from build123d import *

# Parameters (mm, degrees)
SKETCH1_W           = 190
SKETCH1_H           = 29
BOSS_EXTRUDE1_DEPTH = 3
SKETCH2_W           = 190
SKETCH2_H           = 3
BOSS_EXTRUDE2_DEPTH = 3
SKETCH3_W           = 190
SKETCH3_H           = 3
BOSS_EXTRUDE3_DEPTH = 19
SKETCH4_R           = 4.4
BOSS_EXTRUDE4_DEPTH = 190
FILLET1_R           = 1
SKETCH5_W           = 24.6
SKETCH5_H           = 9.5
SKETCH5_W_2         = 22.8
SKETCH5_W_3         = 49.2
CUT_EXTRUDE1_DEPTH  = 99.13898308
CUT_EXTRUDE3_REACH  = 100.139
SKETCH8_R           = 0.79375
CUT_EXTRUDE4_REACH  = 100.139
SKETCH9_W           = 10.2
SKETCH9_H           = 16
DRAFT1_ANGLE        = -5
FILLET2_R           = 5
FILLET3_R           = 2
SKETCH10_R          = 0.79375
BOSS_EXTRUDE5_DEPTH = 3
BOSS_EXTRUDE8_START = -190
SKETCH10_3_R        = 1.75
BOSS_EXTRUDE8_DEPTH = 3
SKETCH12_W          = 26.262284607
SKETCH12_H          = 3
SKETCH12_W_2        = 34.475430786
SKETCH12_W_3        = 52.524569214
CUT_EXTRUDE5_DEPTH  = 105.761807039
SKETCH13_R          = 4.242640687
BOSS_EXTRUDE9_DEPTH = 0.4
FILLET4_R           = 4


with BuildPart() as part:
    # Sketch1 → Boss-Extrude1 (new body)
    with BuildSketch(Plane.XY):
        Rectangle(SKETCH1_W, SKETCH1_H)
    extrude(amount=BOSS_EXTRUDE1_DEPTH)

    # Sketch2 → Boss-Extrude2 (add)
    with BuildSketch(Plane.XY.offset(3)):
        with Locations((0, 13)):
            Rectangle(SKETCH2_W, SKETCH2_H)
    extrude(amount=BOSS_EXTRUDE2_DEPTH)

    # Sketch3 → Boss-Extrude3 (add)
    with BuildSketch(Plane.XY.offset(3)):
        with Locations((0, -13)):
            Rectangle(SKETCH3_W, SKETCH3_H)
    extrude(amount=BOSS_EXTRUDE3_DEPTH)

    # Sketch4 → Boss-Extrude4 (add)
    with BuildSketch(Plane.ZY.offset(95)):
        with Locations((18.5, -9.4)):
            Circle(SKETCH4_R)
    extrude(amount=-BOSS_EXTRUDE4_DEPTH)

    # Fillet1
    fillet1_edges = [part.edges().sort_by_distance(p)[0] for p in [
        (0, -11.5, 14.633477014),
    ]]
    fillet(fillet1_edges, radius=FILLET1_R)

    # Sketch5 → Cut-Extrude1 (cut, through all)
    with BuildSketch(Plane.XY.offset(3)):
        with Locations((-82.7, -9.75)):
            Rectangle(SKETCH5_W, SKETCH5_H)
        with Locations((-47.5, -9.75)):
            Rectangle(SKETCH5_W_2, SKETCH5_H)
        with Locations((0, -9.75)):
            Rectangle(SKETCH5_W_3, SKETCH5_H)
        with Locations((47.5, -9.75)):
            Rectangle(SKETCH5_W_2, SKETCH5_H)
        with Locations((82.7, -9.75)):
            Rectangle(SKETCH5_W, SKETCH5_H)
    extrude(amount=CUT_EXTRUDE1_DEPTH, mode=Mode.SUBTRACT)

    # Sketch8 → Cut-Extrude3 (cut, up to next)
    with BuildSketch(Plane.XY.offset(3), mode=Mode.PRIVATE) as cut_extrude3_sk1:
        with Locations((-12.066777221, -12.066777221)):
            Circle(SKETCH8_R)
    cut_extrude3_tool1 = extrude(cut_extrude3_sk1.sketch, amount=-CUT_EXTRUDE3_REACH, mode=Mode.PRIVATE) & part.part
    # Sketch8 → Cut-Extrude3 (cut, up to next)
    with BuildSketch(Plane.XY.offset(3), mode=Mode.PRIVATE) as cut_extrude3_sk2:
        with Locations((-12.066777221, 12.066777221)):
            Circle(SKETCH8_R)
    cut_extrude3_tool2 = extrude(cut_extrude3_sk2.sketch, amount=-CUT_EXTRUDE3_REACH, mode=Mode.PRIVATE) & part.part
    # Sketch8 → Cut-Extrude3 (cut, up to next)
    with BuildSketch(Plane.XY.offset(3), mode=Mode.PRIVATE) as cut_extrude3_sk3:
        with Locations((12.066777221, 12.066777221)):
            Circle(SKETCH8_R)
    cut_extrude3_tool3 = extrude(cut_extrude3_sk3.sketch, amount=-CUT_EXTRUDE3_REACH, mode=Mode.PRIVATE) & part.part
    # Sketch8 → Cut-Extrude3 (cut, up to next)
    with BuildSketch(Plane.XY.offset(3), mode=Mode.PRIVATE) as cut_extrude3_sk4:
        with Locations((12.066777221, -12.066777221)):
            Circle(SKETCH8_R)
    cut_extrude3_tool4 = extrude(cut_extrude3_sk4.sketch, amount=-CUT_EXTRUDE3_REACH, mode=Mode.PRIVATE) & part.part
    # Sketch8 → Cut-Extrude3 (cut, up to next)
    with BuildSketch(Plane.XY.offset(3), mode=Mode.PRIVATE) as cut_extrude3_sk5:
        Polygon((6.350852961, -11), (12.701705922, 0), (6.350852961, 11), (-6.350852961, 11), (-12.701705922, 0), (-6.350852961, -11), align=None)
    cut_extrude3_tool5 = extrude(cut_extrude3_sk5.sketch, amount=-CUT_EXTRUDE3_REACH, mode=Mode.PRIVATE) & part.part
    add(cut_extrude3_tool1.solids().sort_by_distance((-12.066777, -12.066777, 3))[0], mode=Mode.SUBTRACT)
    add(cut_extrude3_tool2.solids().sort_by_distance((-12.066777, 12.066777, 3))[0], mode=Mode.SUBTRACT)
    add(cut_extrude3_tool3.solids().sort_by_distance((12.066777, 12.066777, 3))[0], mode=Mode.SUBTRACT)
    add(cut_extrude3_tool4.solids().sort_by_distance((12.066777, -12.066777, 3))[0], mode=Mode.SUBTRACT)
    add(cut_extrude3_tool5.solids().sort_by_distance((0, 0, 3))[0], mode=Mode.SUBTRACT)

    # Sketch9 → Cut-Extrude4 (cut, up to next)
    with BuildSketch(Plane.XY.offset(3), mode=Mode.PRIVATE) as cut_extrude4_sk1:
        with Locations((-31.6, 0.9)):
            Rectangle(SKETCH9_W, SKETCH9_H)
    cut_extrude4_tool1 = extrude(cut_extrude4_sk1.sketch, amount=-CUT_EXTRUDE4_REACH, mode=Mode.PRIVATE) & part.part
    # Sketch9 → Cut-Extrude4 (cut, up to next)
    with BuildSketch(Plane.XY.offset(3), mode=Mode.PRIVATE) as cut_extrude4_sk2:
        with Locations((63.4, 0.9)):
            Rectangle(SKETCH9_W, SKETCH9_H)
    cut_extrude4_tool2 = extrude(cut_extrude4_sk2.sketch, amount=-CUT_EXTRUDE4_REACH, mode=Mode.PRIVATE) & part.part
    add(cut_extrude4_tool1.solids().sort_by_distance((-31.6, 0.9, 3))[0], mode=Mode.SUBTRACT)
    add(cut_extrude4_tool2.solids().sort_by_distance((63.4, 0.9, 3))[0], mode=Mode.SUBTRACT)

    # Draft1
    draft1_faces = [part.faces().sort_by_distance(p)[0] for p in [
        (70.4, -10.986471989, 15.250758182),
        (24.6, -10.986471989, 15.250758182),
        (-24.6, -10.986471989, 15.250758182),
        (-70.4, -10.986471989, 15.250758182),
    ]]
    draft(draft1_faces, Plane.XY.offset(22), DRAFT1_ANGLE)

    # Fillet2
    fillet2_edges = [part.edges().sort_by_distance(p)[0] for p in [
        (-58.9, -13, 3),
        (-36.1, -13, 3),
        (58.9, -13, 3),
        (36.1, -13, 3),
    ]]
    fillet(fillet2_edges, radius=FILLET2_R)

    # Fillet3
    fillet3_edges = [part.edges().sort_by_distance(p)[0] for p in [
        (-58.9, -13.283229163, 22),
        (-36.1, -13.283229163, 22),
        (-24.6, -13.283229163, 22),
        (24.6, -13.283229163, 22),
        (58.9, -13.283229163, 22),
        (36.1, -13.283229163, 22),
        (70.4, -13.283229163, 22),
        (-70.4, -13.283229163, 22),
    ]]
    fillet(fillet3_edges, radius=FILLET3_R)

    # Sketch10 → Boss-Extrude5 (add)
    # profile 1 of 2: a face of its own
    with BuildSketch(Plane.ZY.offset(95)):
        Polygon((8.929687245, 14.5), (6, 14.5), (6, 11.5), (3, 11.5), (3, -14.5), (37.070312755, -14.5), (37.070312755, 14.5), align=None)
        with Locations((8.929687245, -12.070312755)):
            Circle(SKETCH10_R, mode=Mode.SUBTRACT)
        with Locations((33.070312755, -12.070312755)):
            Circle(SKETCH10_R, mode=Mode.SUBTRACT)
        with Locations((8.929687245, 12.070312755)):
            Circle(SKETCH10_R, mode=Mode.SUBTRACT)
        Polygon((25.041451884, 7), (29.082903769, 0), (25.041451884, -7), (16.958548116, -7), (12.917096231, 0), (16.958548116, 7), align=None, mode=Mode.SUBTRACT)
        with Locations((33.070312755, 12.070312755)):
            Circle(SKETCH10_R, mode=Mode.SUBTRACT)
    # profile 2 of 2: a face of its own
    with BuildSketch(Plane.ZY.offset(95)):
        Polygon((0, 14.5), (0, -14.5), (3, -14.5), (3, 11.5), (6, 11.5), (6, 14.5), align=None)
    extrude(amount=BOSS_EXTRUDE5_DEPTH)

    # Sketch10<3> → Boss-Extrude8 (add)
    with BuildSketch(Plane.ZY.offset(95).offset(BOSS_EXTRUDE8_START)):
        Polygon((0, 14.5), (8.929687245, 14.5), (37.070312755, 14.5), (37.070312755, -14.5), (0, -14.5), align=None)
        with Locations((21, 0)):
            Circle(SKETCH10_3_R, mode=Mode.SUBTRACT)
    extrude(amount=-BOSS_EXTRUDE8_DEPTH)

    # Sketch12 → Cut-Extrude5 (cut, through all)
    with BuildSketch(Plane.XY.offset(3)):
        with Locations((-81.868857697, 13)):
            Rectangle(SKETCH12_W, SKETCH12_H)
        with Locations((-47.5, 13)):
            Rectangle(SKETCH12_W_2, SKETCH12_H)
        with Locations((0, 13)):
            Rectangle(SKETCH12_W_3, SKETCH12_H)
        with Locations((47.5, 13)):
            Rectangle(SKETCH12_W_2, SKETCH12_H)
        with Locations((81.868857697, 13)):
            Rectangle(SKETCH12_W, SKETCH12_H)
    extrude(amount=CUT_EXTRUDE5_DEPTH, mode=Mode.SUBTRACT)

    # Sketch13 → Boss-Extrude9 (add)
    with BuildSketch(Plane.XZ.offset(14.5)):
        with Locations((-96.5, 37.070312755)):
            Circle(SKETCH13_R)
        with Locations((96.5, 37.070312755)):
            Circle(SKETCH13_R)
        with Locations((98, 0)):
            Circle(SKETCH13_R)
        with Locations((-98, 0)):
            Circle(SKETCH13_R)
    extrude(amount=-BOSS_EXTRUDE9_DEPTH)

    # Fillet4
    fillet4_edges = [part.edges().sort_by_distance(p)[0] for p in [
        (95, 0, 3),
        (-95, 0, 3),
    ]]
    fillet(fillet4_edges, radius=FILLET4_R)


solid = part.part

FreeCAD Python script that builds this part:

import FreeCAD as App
import Part
import Sketcher
Q = App.Units.Quantity


def edges_at(feature, points):
    """Names of the edges that pass closest to the given points."""
    edges = feature.Shape.Edges
    near = lambda p: min(range(len(edges)), key=lambda i: edges[i].distToShape(Part.Vertex(*p))[0])
    return sorted({f"Edge{near(p) + 1}" for p in points})


def faces_at(feature, points):
    """Names of the faces that lie closest to the given points."""
    faces = feature.Shape.Faces
    near = lambda p: min(range(len(faces)), key=lambda i: faces[i].distToShape(Part.Vertex(*p))[0])
    return sorted({f"Face{near(p) + 1}" for p in points})


def add_polygon(sketch, points):
    """Adds a closed chain of lines whose ends are joined by coincident constraints."""
    first, n = sketch.GeometryCount, len(points)
    for a, b in zip(points, points[1:] + points[:1]):
        sketch.addGeometry(Part.LineSegment(App.Vector(*a, 0), App.Vector(*b, 0)), False)
    for i in range(n):
        sketch.addConstraint(Sketcher.Constraint("Coincident", first + i, 2, first + (i + 1) % n, 1))

doc = App.newDocument("Part")
params = doc.addObject("Spreadsheet::Sheet", "Params")
for row, (alias, value) in enumerate([
    ("sketch1_width", "190 mm"),
    ("sketch1_height", "29 mm"),
    ("pad1_length", "3 mm"),
    ("sketch2_width", "190 mm"),
    ("sketch2_height", "3 mm"),
    ("pad2_length", "3 mm"),
    ("sketch3_width", "190 mm"),
    ("sketch3_height", "3 mm"),
    ("pad3_length", "19 mm"),
    ("sketch4_diameter", "8.8 mm"),
    ("pad4_length", "190 mm"),
    ("fillet_radius", "1 mm"),
    ("sketch5_width", "24.6 mm"),
    ("sketch5_width2", "22.8 mm"),
    ("sketch5_width3", "49.2 mm"),
    ("sketch5_height", "9.5 mm"),
    ("sketch11_height", "16 mm"),
    ("sketch11_width", "10.2 mm"),
    ("sketch12_height", "16 mm"),
    ("sketch12_width", "10.2 mm"),
    ("draft_angle", "5 deg"),
    ("fillet2_radius", "5 mm"),
    ("fillet3_radius", "2 mm"),
    ("sketch13_width", "29 mm"),
    ("pad5_length", "3 mm"),
    ("sketch14_diameter", "3.5 mm"),
    ("sketch14_width", "29 mm"),
    ("pad6_length", "3 mm"),
    ("sketch15_height", "3 mm"),
    ("pad7_length", "0.4 mm"),
    ("fillet4_radius", "4 mm"),
], start=1):
    params.set(f"A{row}", alias)
    params.set(f"B{row}", "=" + value)
    params.setAlias(f"B{row}", alias)

body = doc.addObject("PartDesign::Body", "Body")

sketch1 = doc.addObject("Sketcher::SketchObject", "Sketch")
body.addObject(sketch1)
sketch1.AttachmentSupport = (doc.XY_Plane, [""])
sketch1.MapMode = "FlatFace"
add_polygon(sketch1, [(-95, 14.5), (-95, -14.5), (95, -14.5), (95, 14.5)])
sketch1.addConstraint([
    Sketcher.Constraint("Vertical", 0),
    Sketcher.Constraint("Horizontal", 1),
    Sketcher.Constraint("Vertical", 2),
    Sketcher.Constraint("Horizontal", 3),
    Sketcher.Constraint("Symmetric", 0, 2, 2, 2, -1, 1),
    Sketcher.Constraint("DistanceX", 1, 1, 1, 2, Q("190 mm")),
    Sketcher.Constraint("DistanceY", 0, 2, 0, 1, Q("29 mm")),
])
sketch1.setExpression("Constraints[9]", "Params.sketch1_width")
sketch1.setExpression("Constraints[10]", "Params.sketch1_height")
pad1 = doc.addObject("PartDesign::Pad", "Pad")
body.addObject(pad1)
pad1.Profile = sketch1
pad1.setExpression("Length", "Params.pad1_length")

sketch2 = doc.addObject("Sketcher::SketchObject", "Sketch001")
body.addObject(sketch2)
sketch2.AttachmentSupport = (doc.XY_Plane, [""])
sketch2.MapMode = "FlatFace"
sketch2.AttachmentOffset = App.Placement(App.Vector(0, 0, 3), App.Rotation())
add_polygon(sketch2, [(-95, 14.5), (-95, 11.5), (95, 11.5), (95, 14.5)])
sketch2.addConstraint([
    Sketcher.Constraint("Vertical", 0),
    Sketcher.Constraint("Horizontal", 1),
    Sketcher.Constraint("Vertical", 2),
    Sketcher.Constraint("Horizontal", 3),
    Sketcher.Constraint("DistanceX", 1, 1, 1, 2, Q("190 mm")),
    Sketcher.Constraint("DistanceY", 0, 2, 0, 1, Q("3 mm")),
    Sketcher.Constraint("DistanceX", 0, 2, -1, 1, Q("95 mm")),
    Sketcher.Constraint("DistanceY", -1, 1, 0, 2, Q("11.5 mm")),
])
sketch2.setExpression("Constraints[8]", "Params.sketch2_width")
sketch2.setExpression("Constraints[9]", "Params.sketch2_height")
pad2 = doc.addObject("PartDesign::Pad", "Pad001")
body.addObject(pad2)
pad2.Profile = sketch2
pad2.setExpression("Length", "Params.pad2_length")

sketch3 = doc.addObject("Sketcher::SketchObject", "Sketch002")
body.addObject(sketch3)
sketch3.AttachmentSupport = (doc.XY_Plane, [""])
sketch3.MapMode = "FlatFace"
sketch3.AttachmentOffset = App.Placement(App.Vector(0, 0, 3), App.Rotation())
add_polygon(sketch3, [(-95, -11.5), (-95, -14.5), (95, -14.5), (95, -11.5)])
sketch3.addConstraint([
    Sketcher.Constraint("Vertical", 0),
    Sketcher.Constraint("Horizontal", 1),
    Sketcher.Constraint("Vertical", 2),
    Sketcher.Constraint("Horizontal", 3),
    Sketcher.Constraint("DistanceX", 1, 1, 1, 2, Q("190 mm")),
    Sketcher.Constraint("DistanceY", 0, 2, 0, 1, Q("3 mm")),
    Sketcher.Constraint("DistanceX", 0, 2, -1, 1, Q("95 mm")),
    Sketcher.Constraint("DistanceY", 0, 2, -1, 1, Q("14.5 mm")),
])
sketch3.setExpression("Constraints[8]", "Params.sketch3_width")
sketch3.setExpression("Constraints[9]", "Params.sketch3_height")
pad3 = doc.addObject("PartDesign::Pad", "Pad002")
body.addObject(pad3)
pad3.Profile = sketch3
pad3.setExpression("Length", "Params.pad3_length")

sketch4 = doc.addObject("Sketcher::SketchObject", "Sketch003")
body.addObject(sketch4)
sketch4.AttachmentSupport = (doc.YZ_Plane, [""])
sketch4.MapMode = "FlatFace"
sketch4.AttachmentOffset = App.Placement(App.Vector(0, 0, -95), App.Rotation())
sketch4.addGeometry(Part.Circle(App.Vector(-9.4, 18.5, 0), App.Vector(0, 0, 1), 4.4), False)
sketch4.addConstraint([
    Sketcher.Constraint("Diameter", 0, Q("8.8 mm")),
    Sketcher.Constraint("DistanceX", 0, 3, -1, 1, Q("9.4 mm")),
    Sketcher.Constraint("DistanceY", -1, 1, 0, 3, Q("18.5 mm")),
])
sketch4.setExpression("Constraints[0]", "Params.sketch4_diameter")
pad4 = doc.addObject("PartDesign::Pad", "Pad003")
body.addObject(pad4)
pad4.Profile = sketch4
pad4.setExpression("Length", "Params.pad4_length")
doc.recompute()

fillet = doc.addObject("PartDesign::Fillet", "Fillet")
body.addObject(fillet)
fillet.Base = (pad4, edges_at(pad4, [(0, -11.5, 14.633)]))
fillet.setExpression("Radius", "Params.fillet_radius")

sketch5 = doc.addObject("Sketcher::SketchObject", "Sketch004")
body.addObject(sketch5)
sketch5.AttachmentSupport = (doc.XY_Plane, [""])
sketch5.MapMode = "FlatFace"
sketch5.AttachmentOffset = App.Placement(App.Vector(0, 0, 3), App.Rotation())
add_polygon(sketch5, [(-95, -5), (-95, -14.5), (-70.4, -14.5), (-70.4, -5)])
add_polygon(sketch5, [(-58.9, -5), (-58.9, -14.5), (-36.1, -14.5), (-36.1, -5)])
add_polygon(sketch5, [(-24.6, -5), (-24.6, -14.5), (24.6, -14.5), (24.6, -5)])
add_polygon(sketch5, [(36.1, -5), (36.1, -14.5), (58.9, -14.5), (58.9, -5)])
add_polygon(sketch5, [(70.4, -5), (70.4, -14.5), (95, -14.5), (95, -5)])
sketch5.addConstraint([
    Sketcher.Constraint("Vertical", 0),
    Sketcher.Constraint("Horizontal", 1),
    Sketcher.Constraint("Vertical", 2),
    Sketcher.Constraint("Horizontal", 3),
    Sketcher.Constraint("Vertical", 4),
    Sketcher.Constraint("Horizontal", 5),
    Sketcher.Constraint("Vertical", 6),
    Sketcher.Constraint("Horizontal", 7),
    Sketcher.Constraint("Vertical", 8),
    Sketcher.Constraint("Horizontal", 9),
    Sketcher.Constraint("Vertical", 10),
    Sketcher.Constraint("Horizontal", 11),
    Sketcher.Constraint("Vertical", 12),
    Sketcher.Constraint("Horizontal", 13),
    Sketcher.Constraint("Vertical", 14),
    Sketcher.Constraint("Horizontal", 15),
    Sketcher.Constraint("Vertical", 16),
    Sketcher.Constraint("Horizontal", 17),
    Sketcher.Constraint("Vertical", 18),
    Sketcher.Constraint("Horizontal", 19),
    Sketcher.Constraint("Symmetric", 5, 2, 12, 2, -2),
    Sketcher.Constraint("Symmetric", 7, 2, 14, 2, -2),
    Sketcher.Constraint("Symmetric", 1, 2, 16, 2, -2),
    Sketcher.Constraint("Symmetric", 3, 2, 18, 2, -2),
    Sketcher.Constraint("Horizontal", 1, 2, 4, 2),
    Sketcher.Constraint("Horizontal", 3, 2, 6, 2),
    Sketcher.Constraint("Horizontal", 5, 2, 8, 2),
    Sketcher.Constraint("Horizontal", 7, 2, 10, 2),
    Sketcher.Constraint("DistanceX", 1, 1, 1, 2, Q("24.6 mm")),
    Sketcher.Constraint("DistanceX", 5, 1, 5, 2, Q("22.8 mm")),
    Sketcher.Constraint("DistanceX", 9, 1, 9, 2, Q("49.2 mm")),
    Sketcher.Constraint("DistanceY", 0, 2, 0, 1, Q("9.5 mm")),
    Sketcher.Constraint("DistanceX", 0, 2, -1, 1, Q("95 mm")),
    Sketcher.Constraint("DistanceY", 2, 2, -1, 1, Q("5 mm")),
    Sketcher.Constraint("DistanceX", 4, 2, -1, 1, Q("58.9 mm")),
    Sketcher.Constraint("DistanceX", 8, 2, -1, 1, Q("24.6 mm")),
])
sketch5.setExpression("Constraints[48]", "Params.sketch5_width")
sketch5.setExpression("Constraints[49]", "Params.sketch5_width2")
sketch5.setExpression("Constraints[50]", "Params.sketch5_width3")
sketch5.setExpression("Constraints[51]", "Params.sketch5_height")
pocket1 = doc.addObject("PartDesign::Pocket", "Pocket")
body.addObject(pocket1)
pocket1.Profile = sketch5
pocket1.Type = "ThroughAll"
pocket1.Reversed = True

sketch6 = doc.addObject("Sketcher::SketchObject", "Sketch005")
body.addObject(sketch6)
sketch6.AttachmentSupport = (doc.XY_Plane, [""])
sketch6.MapMode = "FlatFace"
sketch6.AttachmentOffset = App.Placement(App.Vector(0, 0, 3), App.Rotation())
sketch6.addGeometry(Part.Circle(App.Vector(-12.066777, -12.066777, 0), App.Vector(0, 0, 1), 0.79375), False)
sketch6.addConstraint([
    Sketcher.Constraint("Diameter", 0, Q("1.5875 mm")),
    Sketcher.Constraint("DistanceX", 0, 3, -1, 1, Q("12.066777 mm")),
    Sketcher.Constraint("DistanceY", 0, 3, -1, 1, Q("12.066777 mm")),
])
pocket2 = doc.addObject("PartDesign::Pocket", "Pocket001")
body.addObject(pocket2)
pocket2.Profile = sketch6
pocket2.Type = "UpToFirst"

sketch7 = doc.addObject("Sketcher::SketchObject", "Sketch006")
body.addObject(sketch7)
sketch7.AttachmentSupport = (doc.XY_Plane, [""])
sketch7.MapMode = "FlatFace"
sketch7.AttachmentOffset = App.Placement(App.Vector(0, 0, 3), App.Rotation())
sketch7.addGeometry(Part.Circle(App.Vector(-12.066777, 12.066777, 0), App.Vector(0, 0, 1), 0.79375), False)
sketch7.addConstraint([
    Sketcher.Constraint("Diameter", 0, Q("1.5875 mm")),
    Sketcher.Constraint("DistanceX", 0, 3, -1, 1, Q("12.066777 mm")),
    Sketcher.Constraint("DistanceY", -1, 1, 0, 3, Q("12.066777 mm")),
])
pocket3 = doc.addObject("PartDesign::Pocket", "Pocket002")
body.addObject(pocket3)
pocket3.Profile = sketch7
pocket3.Type = "UpToFirst"

sketch8 = doc.addObject("Sketcher::SketchObject", "Sketch007")
body.addObject(sketch8)
sketch8.AttachmentSupport = (doc.XY_Plane, [""])
sketch8.MapMode = "FlatFace"
sketch8.AttachmentOffset = App.Placement(App.Vector(0, 0, 3), App.Rotation())
sketch8.addGeometry(Part.Circle(App.Vector(12.066777, 12.066777, 0), App.Vector(0, 0, 1), 0.79375), False)
sketch8.addConstraint([
    Sketcher.Constraint("Diameter", 0, Q("1.5875 mm")),
    Sketcher.Constraint("DistanceX", -1, 1, 0, 3, Q("12.066777 mm")),
    Sketcher.Constraint("DistanceY", -1, 1, 0, 3, Q("12.066777 mm")),
])
pocket4 = doc.addObject("PartDesign::Pocket", "Pocket003")
body.addObject(pocket4)
pocket4.Profile = sketch8
pocket4.Type = "UpToFirst"

sketch9 = doc.addObject("Sketcher::SketchObject", "Sketch008")
body.addObject(sketch9)
sketch9.AttachmentSupport = (doc.XY_Plane, [""])
sketch9.MapMode = "FlatFace"
sketch9.AttachmentOffset = App.Placement(App.Vector(0, 0, 3), App.Rotation())
sketch9.addGeometry(Part.Circle(App.Vector(12.066777, -12.066777, 0), App.Vector(0, 0, 1), 0.79375), False)
sketch9.addConstraint([
    Sketcher.Constraint("Diameter", 0, Q("1.5875 mm")),
    Sketcher.Constraint("DistanceX", -1, 1, 0, 3, Q("12.066777 mm")),
    Sketcher.Constraint("DistanceY", 0, 3, -1, 1, Q("12.066777 mm")),
])
pocket5 = doc.addObject("PartDesign::Pocket", "Pocket004")
body.addObject(pocket5)
pocket5.Profile = sketch9
pocket5.Type = "UpToFirst"

sketch10 = doc.addObject("Sketcher::SketchObject", "Sketch009")
body.addObject(sketch10)
sketch10.AttachmentSupport = (doc.XY_Plane, [""])
sketch10.MapMode = "FlatFace"
sketch10.AttachmentOffset = App.Placement(App.Vector(0, 0, 3), App.Rotation())
add_polygon(sketch10, [(6.350853, -11), (12.701706, 0), (6.350853, 11), (-6.350853, 11), (-12.701706, 0), (-6.350853, -11)])
sketch10.addConstraint([
    Sketcher.Constraint("Horizontal", 2),
    Sketcher.Constraint("Horizontal", 5),
    Sketcher.Constraint("Symmetric", 0, 2, 3, 2, -1, 1),
    Sketcher.Constraint("Symmetric", 1, 2, 4, 2, -1, 1),
    Sketcher.Constraint("PointOnObject", 0, 2, -1),
    Sketcher.Constraint("Parallel", 0, 3),
    Sketcher.Constraint("Vertical", 2, 2, 4, 2),
    Sketcher.Constraint("Angle", 0, Q("60 deg")),
    Sketcher.Constraint("DistanceY", -1, 1, 1, 2, Q("11 mm")),
    Sketcher.Constraint("DistanceX", 2, 2, 2, 1, Q("12.701706 mm")),
])
pocket6 = doc.addObject("PartDesign::Pocket", "Pocket005")
body.addObject(pocket6)
pocket6.Profile = sketch10
pocket6.Type = "UpToFirst"

sketch11 = doc.addObject("Sketcher::SketchObject", "Sketch010")
body.addObject(sketch11)
sketch11.AttachmentSupport = (doc.XY_Plane, [""])
sketch11.MapMode = "FlatFace"
sketch11.AttachmentOffset = App.Placement(App.Vector(0, 0, 3), App.Rotation())
add_polygon(sketch11, [(-36.7, 8.9), (-36.7, -7.1), (-26.5, -7.1), (-26.5, 8.9)])
sketch11.addConstraint([
    Sketcher.Constraint("Vertical", 0),
    Sketcher.Constraint("Horizontal", 1),
    Sketcher.Constraint("Vertical", 2),
    Sketcher.Constraint("Horizontal", 3),
    Sketcher.Constraint("DistanceY", 0, 2, 0, 1, Q("16 mm")),
    Sketcher.Constraint("DistanceX", 1, 1, 1, 2, Q("10.2 mm")),
    Sketcher.Constraint("DistanceX", 0, 2, -1, 1, Q("36.7 mm")),
    Sketcher.Constraint("DistanceY", 0, 2, -1, 1, Q("7.1 mm")),
])
sketch11.setExpression("Constraints[8]", "Params.sketch11_height")
sketch11.setExpression("Constraints[9]", "Params.sketch11_width")
pocket7 = doc.addObject("PartDesign::Pocket", "Pocket006")
body.addObject(pocket7)
pocket7.Profile = sketch11
pocket7.Type = "UpToFirst"

sketch12 = doc.addObject("Sketcher::SketchObject", "Sketch011")
body.addObject(sketch12)
sketch12.AttachmentSupport = (doc.XY_Plane, [""])
sketch12.MapMode = "FlatFace"
sketch12.AttachmentOffset = App.Placement(App.Vector(0, 0, 3), App.Rotation())
add_polygon(sketch12, [(58.3, 8.9), (58.3, -7.1), (68.5, -7.1), (68.5, 8.9)])
sketch12.addConstraint([
    Sketcher.Constraint("Vertical", 0),
    Sketcher.Constraint("Horizontal", 1),
    Sketcher.Constraint("Vertical", 2),
    Sketcher.Constraint("Horizontal", 3),
    Sketcher.Constraint("DistanceY", 0, 2, 0, 1, Q("16 mm")),
    Sketcher.Constraint("DistanceX", 1, 1, 1, 2, Q("10.2 mm")),
    Sketcher.Constraint("DistanceX", -1, 1, 0, 2, Q("58.3 mm")),
    Sketcher.Constraint("DistanceY", 0, 2, -1, 1, Q("7.1 mm")),
])
sketch12.setExpression("Constraints[8]", "Params.sketch12_height")
sketch12.setExpression("Constraints[9]", "Params.sketch12_width")
pocket8 = doc.addObject("PartDesign::Pocket", "Pocket007")
body.addObject(pocket8)
pocket8.Profile = sketch12
pocket8.Type = "UpToFirst"
doc.recompute()

datumplane = doc.addObject("PartDesign::Plane", "DatumPlane")
body.addObject(datumplane)
datumplane.AttachmentSupport = (doc.XY_Plane, [""])
datumplane.MapMode = "FlatFace"
datumplane.AttachmentOffset = App.Placement(App.Vector(0, 0, 22), App.Rotation())
draft = doc.addObject("PartDesign::Draft", "Draft")
body.addObject(draft)
draft.Base = (pocket8, faces_at(pocket8, [
    (70.4, -11.65, 16.93),
    (24.6, -11.65, 16.93),
    (-24.6, -11.65, 16.93),
    (-70.4, -11.65, 16.93),
]))
draft.NeutralPlane = (datumplane, [""])
draft.setExpression("Angle", "Params.draft_angle")
draft.Reversed = True
doc.recompute()

fillet2 = doc.addObject("PartDesign::Fillet", "Fillet001")
body.addObject(fillet2)
fillet2.Base = (draft, edges_at(draft, [
    (-58.9, -13, 3),
    (-36.1, -13, 3),
    (58.9, -13, 3),
    (36.1, -13, 3),
]))
fillet2.setExpression("Radius", "Params.fillet2_radius")
doc.recompute()

fillet3 = doc.addObject("PartDesign::Fillet", "Fillet002")
body.addObject(fillet3)
fillet3.Base = (fillet2, edges_at(fillet2, [
    (-58.9, -13.283, 22),
    (-36.1, -13.283, 22),
    (-24.6, -13.283, 22),
    (24.6, -13.283, 22),
    (58.9, -13.283, 22),
    (36.1, -13.283, 22),
    (70.4, -13.283, 22),
    (-70.4, -13.283, 22),
]))
fillet3.setExpression("Radius", "Params.fillet3_radius")

sketch13 = doc.addObject("Sketcher::SketchObject", "Sketch012")
body.addObject(sketch13)
sketch13.AttachmentSupport = (doc.YZ_Plane, [""])
sketch13.MapMode = "FlatFace"
sketch13.AttachmentOffset = App.Placement(App.Vector(0, 0, -95), App.Rotation())
add_polygon(sketch13, [(14.5, 37.070313), (14.5, 0), (-14.5, 0), (-14.5, 37.070313)])
sketch13.addGeometry(Part.Circle(App.Vector(-12.070313, 8.929687, 0), App.Vector(0, 0, 1), 0.79375), False)
add_polygon(sketch13, [(7, 16.958548), (7, 25.041452), (0, 29.082904), (-7, 25.041452), (-7, 16.958548), (0, 12.917096)])
sketch13.addGeometry(Part.Circle(App.Vector(-12.070313, 33.070313, 0), App.Vector(0, 0, 1), 0.79375), False)
sketch13.addGeometry(Part.Circle(App.Vector(12.070313, 8.929687, 0), App.Vector(0, 0, 1), 0.79375), False)
sketch13.addGeometry(Part.Circle(App.Vector(12.070313, 33.070313, 0), App.Vector(0, 0, 1), 0.79375), False)
sketch13.addConstraint([
    Sketcher.Constraint("Vertical", 0),
    Sketcher.Constraint("Horizontal", 1),
    Sketcher.Constraint("Vertical", 2),
    Sketcher.Constraint("Horizontal", 3),
    Sketcher.Constraint("Vertical", 5),
    Sketcher.Constraint("Vertical", 8),
    Sketcher.Constraint("Equal", 4, 11),
    Sketcher.Constraint("Equal", 11, 12),
    Sketcher.Constraint("Equal", 12, 13),
    Sketcher.Constraint("Symmetric", 0, 2, 1, 2, -1, 1),
    Sketcher.Constraint("Symmetric", 4, 3, 12, 3, -2),
    Sketcher.Constraint("Symmetric", 11, 3, 13, 3, -2),
    Sketcher.Constraint("Symmetric", 5, 2, 7, 2, -2),
    Sketcher.Constraint("PointOnObject", 6, 2, -2),
    Sketcher.Constraint("PointOnObject", 9, 2, -2),
    Sketcher.Constraint("Parallel", 6, 9),
    Sketcher.Constraint("Parallel", 7, 10),
    Sketcher.Constraint("Vertical", 4, 3, 11, 3),
    Sketcher.Constraint("DistanceX", 1, 2, 1, 1, Q("29 mm")),
    Sketcher.Constraint("Angle", 6, Q("150 deg")),
    Sketcher.Constraint("DistanceX", -1, 1, 5, 2, Q("7 mm")),
    Sketcher.Constraint("DistanceY", 11, 3, 2, 2, Q("4 mm")),
    Sketcher.Constraint("Diameter", 4, Q("1.5875 mm")),
    Sketcher.Constraint("DistanceY", 0, 2, 0, 1, Q("37.070313 mm")),
    Sketcher.Constraint("DistanceY", 5, 1, 5, 2, Q("8.082904 mm")),
    Sketcher.Constraint("DistanceY", -1, 1, 5, 2, Q("25.041452 mm")),
    Sketcher.Constraint("DistanceY", 4, 3, 8, 2, Q("8.028861 mm")),
    Sketcher.Constraint("DistanceX", 4, 3, -1, 1, Q("12.070313 mm")),
])
sketch13.setExpression("Constraints[28]", "Params.sketch13_width")
pad5 = doc.addObject("PartDesign::Pad", "Pad004")
body.addObject(pad5)
pad5.Profile = sketch13
pad5.setExpression("Length", "Params.pad5_length")
pad5.Reversed = True

sketch14 = doc.addObject("Sketcher::SketchObject", "Sketch013")
body.addObject(sketch14)
sketch14.AttachmentSupport = (doc.YZ_Plane, [""])
sketch14.MapMode = "FlatFace"
sketch14.AttachmentOffset = App.Placement(App.Vector(0, 0, 95), App.Rotation())
add_polygon(sketch14, [(14.5, 37.070313), (14.5, 0), (-14.5, 0), (-14.5, 37.070313)])
sketch14.addGeometry(Part.Circle(App.Vector(0, 21, 0), App.Vector(0, 0, 1), 1.75), False)
sketch14.addConstraint([
    Sketcher.Constraint("Vertical", 0),
    Sketcher.Constraint("Horizontal", 1),
    Sketcher.Constraint("Vertical", 2),
    Sketcher.Constraint("Horizontal", 3),
    Sketcher.Constraint("Symmetric", 0, 2, 1, 2, -1, 1),
    Sketcher.Constraint("PointOnObject", 4, 3, -2),
    Sketcher.Constraint("Diameter", 4, Q("3.5 mm")),
    Sketcher.Constraint("DistanceX", 1, 2, 1, 1, Q("29 mm")),
    Sketcher.Constraint("DistanceY", -1, 1, 4, 3, Q("21 mm")),
    Sketcher.Constraint("DistanceY", 0, 2, 0, 1, Q("37.070313 mm")),
])
sketch14.setExpression("Constraints[10]", "Params.sketch14_diameter")
sketch14.setExpression("Constraints[11]", "Params.sketch14_width")
pad6 = doc.addObject("PartDesign::Pad", "Pad005")
body.addObject(pad6)
pad6.Profile = sketch14
pad6.setExpression("Length", "Params.pad6_length")

sketch15 = doc.addObject("Sketcher::SketchObject", "Sketch014")
body.addObject(sketch15)
sketch15.AttachmentSupport = (doc.XY_Plane, [""])
sketch15.MapMode = "FlatFace"
sketch15.AttachmentOffset = App.Placement(App.Vector(0, 0, 3), App.Rotation())
add_polygon(sketch15, [(-95, 14.5), (-95, 11.5), (-68.737715, 11.5), (-68.737715, 14.5)])
add_polygon(sketch15, [(-64.737715, 14.5), (-64.737715, 11.5), (-30.262285, 11.5), (-30.262285, 14.5)])
add_polygon(sketch15, [(-26.262285, 14.5), (-26.262285, 11.5), (26.262285, 11.5), (26.262285, 14.5)])
add_polygon(sketch15, [(30.262285, 14.5), (30.262285, 11.5), (64.737715, 11.5), (64.737715, 14.5)])
add_polygon(sketch15, [(68.737715, 14.5), (68.737715, 11.5), (95, 11.5), (95, 14.5)])
sketch15.addConstraint([
    Sketcher.Constraint("Vertical", 0),
    Sketcher.Constraint("Horizontal", 1),
    Sketcher.Constraint("Vertical", 2),
    Sketcher.Constraint("Horizontal", 3),
    Sketcher.Constraint("Vertical", 4),
    Sketcher.Constraint("Horizontal", 5),
    Sketcher.Constraint("Vertical", 6),
    Sketcher.Constraint("Horizontal", 7),
    Sketcher.Constraint("Vertical", 8),
    Sketcher.Constraint("Horizontal", 9),
    Sketcher.Constraint("Vertical", 10),
    Sketcher.Constraint("Horizontal", 11),
    Sketcher.Constraint("Vertical", 12),
    Sketcher.Constraint("Horizontal", 13),
    Sketcher.Constraint("Vertical", 14),
    Sketcher.Constraint("Horizontal", 15),
    Sketcher.Constraint("Vertical", 16),
    Sketcher.Constraint("Horizontal", 17),
    Sketcher.Constraint("Vertical", 18),
    Sketcher.Constraint("Horizontal", 19),
    Sketcher.Constraint("Symmetric", 5, 2, 12, 2, -2),
    Sketcher.Constraint("Symmetric", 7, 2, 14, 2, -2),
    Sketcher.Constraint("Symmetric", 1, 2, 16, 2, -2),
    Sketcher.Constraint("Symmetric", 3, 2, 18, 2, -2),
    Sketcher.Constraint("Horizontal", 1, 2, 4, 2),
    Sketcher.Constraint("Horizontal", 3, 2, 6, 2),
    Sketcher.Constraint("Horizontal", 5, 2, 8, 2),
    Sketcher.Constraint("Horizontal", 7, 2, 10, 2),
    Sketcher.Constraint("DistanceY", 0, 2, 0, 1, Q("3 mm")),
    Sketcher.Constraint("DistanceX", 0, 2, -1, 1, Q("95 mm")),
    Sketcher.Constraint("DistanceX", 1, 2, 4, 2, Q("4 mm")),
    Sketcher.Constraint("DistanceX", 5, 2, 8, 2, Q("4 mm")),
    Sketcher.Constraint("DistanceX", 4, 2, 9, 2, Q("91 mm")),
    Sketcher.Constraint("DistanceX", 9, 2, 12, 2, Q("4 mm")),
    Sketcher.Constraint("DistanceY", -1, 1, 0, 2, Q("11.5 mm")),
    Sketcher.Constraint("DistanceX", 5, 1, 5, 2, Q("34.475431 mm")),
])
sketch15.setExpression("Constraints[48]", "Params.sketch15_height")
pocket9 = doc.addObject("PartDesign::Pocket", "Pocket008")
body.addObject(pocket9)
pocket9.Profile = sketch15
pocket9.Type = "ThroughAll"
pocket9.Reversed = True

sketch16 = doc.addObject("Sketcher::SketchObject", "Sketch015")
body.addObject(sketch16)
sketch16.AttachmentSupport = (doc.XZ_Plane, [""])
sketch16.MapMode = "FlatFace"
sketch16.AttachmentOffset = App.Placement(App.Vector(0, 0, 14.5), App.Rotation())
sketch16.addGeometry([
    Part.Circle(App.Vector(-96.5, 37.070313, 0), App.Vector(0, 0, 1), 4.242641),
    Part.Circle(App.Vector(96.5, 37.070313, 0), App.Vector(0, 0, 1), 4.242641),
    Part.Circle(App.Vector(98, 0, 0), App.Vector(0, 0, 1), 4.242641),
    Part.Circle(App.Vector(-98, 0, 0), App.Vector(0, 0, 1), 4.242641),
], False)
sketch16.addConstraint([
    Sketcher.Constraint("Equal", 0, 1),
    Sketcher.Constraint("Equal", 1, 2),
    Sketcher.Constraint("Equal", 2, 3),
    Sketcher.Constraint("Symmetric", 2, 3, 3, 3, -1, 1),
    Sketcher.Constraint("Symmetric", 0, 3, 1, 3, -2),
    Sketcher.Constraint("PointOnObject", 2, 3, -1),
    Sketcher.Constraint("DistanceX", -1, 1, 2, 3, Q("98 mm")),
    Sketcher.Constraint("DistanceX", 0, 3, 1, 3, Q("193 mm")),
    Sketcher.Constraint("Diameter", 0, Q("8.485281 mm")),
    Sketcher.Constraint("DistanceY", -1, 1, 0, 3, Q("37.070313 mm")),
])
pad7 = doc.addObject("PartDesign::Pad", "Pad006")
body.addObject(pad7)
pad7.Profile = sketch16
pad7.setExpression("Length", "Params.pad7_length")
pad7.Reversed = True
doc.recompute()

fillet4 = doc.addObject("PartDesign::Fillet", "Fillet003")
body.addObject(fillet4)
fillet4.Base = (pad7, edges_at(pad7, [(95, -1.5, 3), (-95, -1.5, 3)]))
fillet4.setExpression("Radius", "Params.fillet4_radius")

doc.recompute()
